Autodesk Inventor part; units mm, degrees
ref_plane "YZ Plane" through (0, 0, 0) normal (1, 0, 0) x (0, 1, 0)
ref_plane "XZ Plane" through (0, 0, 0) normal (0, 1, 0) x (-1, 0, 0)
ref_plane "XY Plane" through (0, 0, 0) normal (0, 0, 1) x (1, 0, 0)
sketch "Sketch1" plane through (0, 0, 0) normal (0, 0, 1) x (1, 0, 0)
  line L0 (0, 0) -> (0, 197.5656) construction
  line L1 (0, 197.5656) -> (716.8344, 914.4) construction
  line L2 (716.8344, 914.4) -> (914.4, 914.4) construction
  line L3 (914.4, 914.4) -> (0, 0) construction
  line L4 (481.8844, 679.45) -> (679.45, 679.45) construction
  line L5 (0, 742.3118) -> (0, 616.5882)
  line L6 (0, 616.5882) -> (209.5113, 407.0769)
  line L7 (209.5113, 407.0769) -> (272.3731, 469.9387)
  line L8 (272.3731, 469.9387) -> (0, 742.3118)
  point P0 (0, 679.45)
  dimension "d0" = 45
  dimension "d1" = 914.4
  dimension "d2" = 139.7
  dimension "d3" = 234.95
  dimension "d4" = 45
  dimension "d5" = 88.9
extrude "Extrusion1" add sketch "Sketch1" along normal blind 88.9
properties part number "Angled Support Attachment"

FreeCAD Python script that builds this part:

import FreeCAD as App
import Part
import Sketcher
Q = App.Units.Quantity


def add_polygon(sketch, points):
    """Adds a closed chain of lines whose ends are joined by coincident constraints."""
    first, n = sketch.GeometryCount, len(points)
    for a, b in zip(points, points[1:] + points[:1]):
        sketch.addGeometry(Part.LineSegment(App.Vector(*a, 0), App.Vector(*b, 0)), False)
    for i in range(n):
        sketch.addConstraint(Sketcher.Constraint("Coincident", first + i, 2, first + (i + 1) % n, 1))

doc = App.newDocument("Part")
body = doc.addObject("PartDesign::Body", "Body")

# Sketch on XY plane
sketch1 = body.newObject("Sketcher::SketchObject", "Sketch")
sketch1.AttachmentSupport = (doc.getObject("XY_Plane"), [""])
sketch1.MapMode = "FlatFace"
add_polygon(sketch1, [(272, 470), (0, 742), (0, 617), (210, 407)])  # lines 0-3
sketch1.addConstraint(Sketcher.Constraint("Vertical", 1))
sketch1.addConstraint(Sketcher.Constraint("PointOnObject", 0, 2, -2))
sketch1.addConstraint(Sketcher.Constraint("Parallel", 0, 2))
sketch1.addConstraint(Sketcher.Constraint("Perpendicular", 2, 3))
sketch1.addConstraint(Sketcher.Constraint("Angle", 2, Q("-45 deg")))
sketch1.addConstraint(Sketcher.Constraint("Distance", 3, Q("3.5 in")))
sketch1.addConstraint(Sketcher.Constraint("Distance", 0, Q("15.1651 in")))
sketch1.addConstraint(Sketcher.Constraint("DistanceY", -1, 1, 0, 2, 742.3118))
pad1 = body.newObject("PartDesign::Pad", "Pad")
pad1.Profile = sketch1
pad1.Length = Q("3.5 in")

doc.recompute()
